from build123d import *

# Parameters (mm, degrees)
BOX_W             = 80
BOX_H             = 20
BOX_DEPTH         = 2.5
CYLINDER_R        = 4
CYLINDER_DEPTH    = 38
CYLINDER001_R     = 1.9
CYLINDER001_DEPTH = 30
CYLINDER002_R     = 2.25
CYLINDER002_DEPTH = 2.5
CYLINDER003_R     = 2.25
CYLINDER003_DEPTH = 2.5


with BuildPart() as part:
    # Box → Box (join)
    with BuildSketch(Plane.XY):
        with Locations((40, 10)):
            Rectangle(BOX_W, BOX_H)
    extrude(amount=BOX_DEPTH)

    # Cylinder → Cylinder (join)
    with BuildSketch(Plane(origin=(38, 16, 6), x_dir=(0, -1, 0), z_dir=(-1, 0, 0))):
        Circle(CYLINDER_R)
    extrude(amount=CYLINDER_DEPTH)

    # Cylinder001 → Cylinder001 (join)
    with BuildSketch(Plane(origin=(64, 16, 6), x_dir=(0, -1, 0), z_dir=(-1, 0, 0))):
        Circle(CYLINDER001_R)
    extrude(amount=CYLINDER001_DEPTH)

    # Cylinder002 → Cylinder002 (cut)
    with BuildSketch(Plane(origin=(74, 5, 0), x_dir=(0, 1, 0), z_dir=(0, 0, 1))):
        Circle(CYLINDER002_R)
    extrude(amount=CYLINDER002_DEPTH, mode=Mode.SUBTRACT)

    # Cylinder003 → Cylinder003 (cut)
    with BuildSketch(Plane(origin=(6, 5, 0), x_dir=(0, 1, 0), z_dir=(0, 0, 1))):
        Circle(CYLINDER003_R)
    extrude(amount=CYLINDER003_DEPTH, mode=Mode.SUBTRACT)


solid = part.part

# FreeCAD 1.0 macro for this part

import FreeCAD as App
import Part
import Sketcher


def add_polygon(sketch, points):
    """Adds a closed chain of lines whose ends are joined by coincident constraints."""
    first, n = sketch.GeometryCount, len(points)
    for a, b in zip(points, points[1:] + points[:1]):
        sketch.addGeometry(Part.LineSegment(App.Vector(*a, 0), App.Vector(*b, 0)), False)
    for i in range(n):
        sketch.addConstraint(Sketcher.Constraint("Coincident", first + i, 2, first + (i + 1) % n, 1))

doc = App.newDocument("Part")
body = doc.addObject("PartDesign::Body", "Body")

# Sketch on XY plane
sketch1 = body.newObject("Sketcher::SketchObject", "Sketch")
sketch1.AttachmentSupport = (doc.getObject("XY_Plane"), [""])
sketch1.MapMode = "FlatFace"
add_polygon(sketch1, [(0, 20), (0, 0), (80, 0), (80, 20)])  # lines 0-3
sketch1.addConstraint([
    Sketcher.Constraint("Vertical", 0),
    Sketcher.Constraint("Horizontal", 1),
    Sketcher.Constraint("Vertical", 2),
    Sketcher.Constraint("Horizontal", 3),
    Sketcher.Constraint("Coincident", 0, 2, -1, 1),
    Sketcher.Constraint("DistanceX", 1, 1, 1, 2, 80.0),
    Sketcher.Constraint("DistanceY", 0, 2, 0, 1, 20.0),
])
pad1 = body.newObject("PartDesign::Pad", "Pad")
pad1.Profile = sketch1
pad1.Length = 2.5

# Sketch on YZ plane
sketch2 = body.newObject("Sketcher::SketchObject", "Sketch001")
sketch2.AttachmentSupport = (doc.getObject("YZ_Plane"), [""])
sketch2.MapMode = "FlatFace"
sketch2.AttachmentOffset = App.Placement(App.Vector(0, 0, 38), App.Rotation())
sketch2.addGeometry(Part.Circle(App.Vector(16, 6, 0), App.Vector(0, 0, 1), 4), False)
sketch2.addConstraint([
    Sketcher.Constraint("Diameter", 0, 8.0),
    Sketcher.Constraint("DistanceX", -1, 1, 0, 3, 16.0),
    Sketcher.Constraint("DistanceY", -1, 1, 0, 3, 6.0),
])
pad2 = body.newObject("PartDesign::Pad", "Pad001")
pad2.Profile = sketch2
pad2.Length = 38
pad2.Reversed = True

# Sketch on YZ plane
sketch3 = body.newObject("Sketcher::SketchObject", "Sketch002")
sketch3.AttachmentSupport = (doc.getObject("YZ_Plane"), [""])
sketch3.MapMode = "FlatFace"
sketch3.AttachmentOffset = App.Placement(App.Vector(0, 0, 64), App.Rotation())
sketch3.addGeometry(Part.Circle(App.Vector(16, 6, 0), App.Vector(0, 0, 1), 1.9), False)
sketch3.addConstraint([
    Sketcher.Constraint("Diameter", 0, 3.8),
    Sketcher.Constraint("DistanceX", -1, 1, 0, 3, 16.0),
    Sketcher.Constraint("DistanceY", -1, 1, 0, 3, 6.0),
])
pad3 = body.newObject("PartDesign::Pad", "Pad002")
pad3.Profile = sketch3
pad3.Length = 30
pad3.Reversed = True

# Sketch on XY plane
sketch4 = body.newObject("Sketcher::SketchObject", "Sketch003")
sketch4.AttachmentSupport = (doc.getObject("XY_Plane"), [""])
sketch4.MapMode = "FlatFace"
sketch4.addGeometry(Part.Circle(App.Vector(74, 5, 0), App.Vector(0, 0, 1), 2.25), False)
sketch4.addConstraint([
    Sketcher.Constraint("Diameter", 0, 4.5),
    Sketcher.Constraint("DistanceX", -1, 1, 0, 3, 74.0),
    Sketcher.Constraint("DistanceY", -1, 1, 0, 3, 5.0),
])
pocket1 = body.newObject("PartDesign::Pocket", "Pocket")
pocket1.Profile = sketch4
pocket1.Length = 2.5
pocket1.Reversed = True

# Sketch on XY plane
sketch5 = body.newObject("Sketcher::SketchObject", "Sketch004")
sketch5.AttachmentSupport = (doc.getObject("XY_Plane"), [""])
sketch5.MapMode = "FlatFace"
sketch5.addGeometry(Part.Circle(App.Vector(6, 5, 0), App.Vector(0, 0, 1), 2.25), False)
sketch5.addConstraint([
    Sketcher.Constraint("Diameter", 0, 4.5),
    Sketcher.Constraint("DistanceX", -1, 1, 0, 3, 6.0),
    Sketcher.Constraint("DistanceY", -1, 1, 0, 3, 5.0),
])
pocket2 = body.newObject("PartDesign::Pocket", "Pocket001")
pocket2.Profile = sketch5
pocket2.Length = 2.5
pocket2.Reversed = True

doc.recompute()
